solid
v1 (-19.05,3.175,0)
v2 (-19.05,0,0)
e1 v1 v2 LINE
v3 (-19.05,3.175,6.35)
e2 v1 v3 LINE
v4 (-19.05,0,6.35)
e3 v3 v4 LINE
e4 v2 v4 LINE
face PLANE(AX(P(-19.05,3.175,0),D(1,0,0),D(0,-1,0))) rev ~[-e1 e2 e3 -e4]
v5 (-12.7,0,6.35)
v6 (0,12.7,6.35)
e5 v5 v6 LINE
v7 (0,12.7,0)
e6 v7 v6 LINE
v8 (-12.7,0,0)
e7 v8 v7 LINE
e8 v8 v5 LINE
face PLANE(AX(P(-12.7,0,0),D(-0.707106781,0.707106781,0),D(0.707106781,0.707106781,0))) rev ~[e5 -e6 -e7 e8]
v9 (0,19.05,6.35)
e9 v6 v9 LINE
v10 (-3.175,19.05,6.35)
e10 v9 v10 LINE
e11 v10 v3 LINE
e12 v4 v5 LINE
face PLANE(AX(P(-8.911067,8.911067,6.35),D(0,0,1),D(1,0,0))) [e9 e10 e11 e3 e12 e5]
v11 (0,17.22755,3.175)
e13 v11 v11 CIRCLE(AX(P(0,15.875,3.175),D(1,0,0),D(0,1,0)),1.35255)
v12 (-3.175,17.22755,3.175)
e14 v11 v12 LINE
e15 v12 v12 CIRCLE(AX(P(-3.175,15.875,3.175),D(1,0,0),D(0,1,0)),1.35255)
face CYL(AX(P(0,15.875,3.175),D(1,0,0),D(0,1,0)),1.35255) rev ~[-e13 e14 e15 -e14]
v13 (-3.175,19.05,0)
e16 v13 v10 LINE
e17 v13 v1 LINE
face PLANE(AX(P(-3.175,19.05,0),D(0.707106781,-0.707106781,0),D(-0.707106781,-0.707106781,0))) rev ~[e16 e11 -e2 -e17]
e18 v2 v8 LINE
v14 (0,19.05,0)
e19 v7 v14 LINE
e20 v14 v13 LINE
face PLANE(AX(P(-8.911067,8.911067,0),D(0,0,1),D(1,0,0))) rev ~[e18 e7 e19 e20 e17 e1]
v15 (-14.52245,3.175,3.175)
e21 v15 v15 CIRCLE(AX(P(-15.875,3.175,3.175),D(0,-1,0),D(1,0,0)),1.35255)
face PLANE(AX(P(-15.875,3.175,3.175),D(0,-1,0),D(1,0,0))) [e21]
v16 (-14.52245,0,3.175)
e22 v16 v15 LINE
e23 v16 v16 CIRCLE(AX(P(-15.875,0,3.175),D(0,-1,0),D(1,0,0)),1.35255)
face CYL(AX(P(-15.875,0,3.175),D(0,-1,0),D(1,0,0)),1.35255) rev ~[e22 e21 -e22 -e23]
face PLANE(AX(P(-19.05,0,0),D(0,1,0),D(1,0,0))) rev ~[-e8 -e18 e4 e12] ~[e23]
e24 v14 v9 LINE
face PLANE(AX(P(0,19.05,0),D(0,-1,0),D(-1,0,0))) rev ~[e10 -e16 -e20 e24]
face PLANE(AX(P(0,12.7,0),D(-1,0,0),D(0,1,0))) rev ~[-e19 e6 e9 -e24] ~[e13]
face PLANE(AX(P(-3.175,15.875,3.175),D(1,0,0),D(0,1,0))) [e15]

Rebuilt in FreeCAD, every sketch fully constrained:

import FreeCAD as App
import Part
import Sketcher
from FreeCAD import Vector
Q = App.Units.Quantity

doc = App.newDocument("Part")
body = doc.addObject("PartDesign::Body", "Body")

sketch1 = body.newObject("Sketcher::SketchObject", "Sketch")
sketch1.AttachmentSupport = (doc.getObject("XY_Plane"), [""])
sketch1.MapMode = "FlatFace"
sketch1.addGeometry([
    Part.LineSegment(Vector(-19.1, 0, 0), Vector(-12.7, 0, 0)),
    Part.LineSegment(Vector(-12.7, 0, 0), Vector(0, 12.7, 0)),
    Part.LineSegment(Vector(0, 12.7, 0), Vector(0, 19.1, 0)),
    Part.LineSegment(Vector(0, 19.1, 0), Vector(-3.2, 19.1, 0)),
    Part.LineSegment(Vector(-3.2, 19.1, 0), Vector(-19.1, 3.2, 0)),
    Part.LineSegment(Vector(-19.1, 3.2, 0), Vector(-19.1, 0, 0)),
], False)
sketch1.addConstraint([
    Sketcher.Constraint("Coincident", 0, 2, 1, 1),
    Sketcher.Constraint("Coincident", 1, 2, 2, 1),
    Sketcher.Constraint("Coincident", 2, 2, 3, 1),
    Sketcher.Constraint("Coincident", 3, 2, 4, 1),
    Sketcher.Constraint("Coincident", 4, 2, 5, 1),
    Sketcher.Constraint("Coincident", 5, 2, 0, 1),
    Sketcher.Constraint("Horizontal", 0),
    Sketcher.Constraint("Vertical", 2),
    Sketcher.Constraint("Horizontal", 3),
    Sketcher.Constraint("Vertical", 5),
    Sketcher.Constraint("PointOnObject", 0, 2, -1),
    Sketcher.Constraint("PointOnObject", 1, 2, -2),
    Sketcher.Constraint("Parallel", 1, 4),
    Sketcher.Constraint("Equal", 0, 2),
    Sketcher.Constraint("Equal", 3, 5),
    Sketcher.Constraint("DistanceX", 0, 1, 0, 2, Q("0.25 in")),
    Sketcher.Constraint("DistanceX", 0, 2, -1, 1, Q("0.5 in")),
    Sketcher.Constraint("DistanceX", 3, 2, 3, 1, Q("0.125 in")),
])
pad1 = body.newObject("PartDesign::Pad", "Pad")
pad1.Profile = sketch1
pad1.Length = Q("0.25 in")

sketch2 = body.newObject("Sketcher::SketchObject", "Sketch001")
sketch2.AttachmentSupport = (doc.getObject("YZ_Plane"), [""])
sketch2.MapMode = "FlatFace"
sketch2.addGeometry(Part.Circle(Vector(15.9, 3.2, 0), Vector(0, 0, 1), 1.4), False)
sketch2.addConstraint([
    Sketcher.Constraint("Diameter", 0, Q("0.1065 in")),
    Sketcher.Constraint("DistanceX", -1, 1, 0, 3, Q("0.625 in")),
    Sketcher.Constraint("DistanceY", -1, 1, 0, 3, Q("0.125 in")),
])
pocket1 = body.newObject("PartDesign::Pocket", "Pocket")
pocket1.Profile = sketch2
pocket1.Length = Q("0.125 in")

sketch3 = body.newObject("Sketcher::SketchObject", "Sketch002")
sketch3.AttachmentSupport = (doc.getObject("XZ_Plane"), [""])
sketch3.MapMode = "FlatFace"
sketch3.addGeometry(Part.Circle(Vector(-15.9, 3.2, 0), Vector(0, 0, 1), 1.4), False)
sketch3.addConstraint([
    Sketcher.Constraint("Diameter", 0, Q("0.1065 in")),
    Sketcher.Constraint("DistanceX", 0, 3, -1, 1, Q("0.625 in")),
    Sketcher.Constraint("DistanceY", -1, 1, 0, 3, Q("0.125 in")),
])
pocket2 = body.newObject("PartDesign::Pocket", "Pocket001")
pocket2.Profile = sketch3
pocket2.Length = Q("0.125 in")

doc.recompute()
